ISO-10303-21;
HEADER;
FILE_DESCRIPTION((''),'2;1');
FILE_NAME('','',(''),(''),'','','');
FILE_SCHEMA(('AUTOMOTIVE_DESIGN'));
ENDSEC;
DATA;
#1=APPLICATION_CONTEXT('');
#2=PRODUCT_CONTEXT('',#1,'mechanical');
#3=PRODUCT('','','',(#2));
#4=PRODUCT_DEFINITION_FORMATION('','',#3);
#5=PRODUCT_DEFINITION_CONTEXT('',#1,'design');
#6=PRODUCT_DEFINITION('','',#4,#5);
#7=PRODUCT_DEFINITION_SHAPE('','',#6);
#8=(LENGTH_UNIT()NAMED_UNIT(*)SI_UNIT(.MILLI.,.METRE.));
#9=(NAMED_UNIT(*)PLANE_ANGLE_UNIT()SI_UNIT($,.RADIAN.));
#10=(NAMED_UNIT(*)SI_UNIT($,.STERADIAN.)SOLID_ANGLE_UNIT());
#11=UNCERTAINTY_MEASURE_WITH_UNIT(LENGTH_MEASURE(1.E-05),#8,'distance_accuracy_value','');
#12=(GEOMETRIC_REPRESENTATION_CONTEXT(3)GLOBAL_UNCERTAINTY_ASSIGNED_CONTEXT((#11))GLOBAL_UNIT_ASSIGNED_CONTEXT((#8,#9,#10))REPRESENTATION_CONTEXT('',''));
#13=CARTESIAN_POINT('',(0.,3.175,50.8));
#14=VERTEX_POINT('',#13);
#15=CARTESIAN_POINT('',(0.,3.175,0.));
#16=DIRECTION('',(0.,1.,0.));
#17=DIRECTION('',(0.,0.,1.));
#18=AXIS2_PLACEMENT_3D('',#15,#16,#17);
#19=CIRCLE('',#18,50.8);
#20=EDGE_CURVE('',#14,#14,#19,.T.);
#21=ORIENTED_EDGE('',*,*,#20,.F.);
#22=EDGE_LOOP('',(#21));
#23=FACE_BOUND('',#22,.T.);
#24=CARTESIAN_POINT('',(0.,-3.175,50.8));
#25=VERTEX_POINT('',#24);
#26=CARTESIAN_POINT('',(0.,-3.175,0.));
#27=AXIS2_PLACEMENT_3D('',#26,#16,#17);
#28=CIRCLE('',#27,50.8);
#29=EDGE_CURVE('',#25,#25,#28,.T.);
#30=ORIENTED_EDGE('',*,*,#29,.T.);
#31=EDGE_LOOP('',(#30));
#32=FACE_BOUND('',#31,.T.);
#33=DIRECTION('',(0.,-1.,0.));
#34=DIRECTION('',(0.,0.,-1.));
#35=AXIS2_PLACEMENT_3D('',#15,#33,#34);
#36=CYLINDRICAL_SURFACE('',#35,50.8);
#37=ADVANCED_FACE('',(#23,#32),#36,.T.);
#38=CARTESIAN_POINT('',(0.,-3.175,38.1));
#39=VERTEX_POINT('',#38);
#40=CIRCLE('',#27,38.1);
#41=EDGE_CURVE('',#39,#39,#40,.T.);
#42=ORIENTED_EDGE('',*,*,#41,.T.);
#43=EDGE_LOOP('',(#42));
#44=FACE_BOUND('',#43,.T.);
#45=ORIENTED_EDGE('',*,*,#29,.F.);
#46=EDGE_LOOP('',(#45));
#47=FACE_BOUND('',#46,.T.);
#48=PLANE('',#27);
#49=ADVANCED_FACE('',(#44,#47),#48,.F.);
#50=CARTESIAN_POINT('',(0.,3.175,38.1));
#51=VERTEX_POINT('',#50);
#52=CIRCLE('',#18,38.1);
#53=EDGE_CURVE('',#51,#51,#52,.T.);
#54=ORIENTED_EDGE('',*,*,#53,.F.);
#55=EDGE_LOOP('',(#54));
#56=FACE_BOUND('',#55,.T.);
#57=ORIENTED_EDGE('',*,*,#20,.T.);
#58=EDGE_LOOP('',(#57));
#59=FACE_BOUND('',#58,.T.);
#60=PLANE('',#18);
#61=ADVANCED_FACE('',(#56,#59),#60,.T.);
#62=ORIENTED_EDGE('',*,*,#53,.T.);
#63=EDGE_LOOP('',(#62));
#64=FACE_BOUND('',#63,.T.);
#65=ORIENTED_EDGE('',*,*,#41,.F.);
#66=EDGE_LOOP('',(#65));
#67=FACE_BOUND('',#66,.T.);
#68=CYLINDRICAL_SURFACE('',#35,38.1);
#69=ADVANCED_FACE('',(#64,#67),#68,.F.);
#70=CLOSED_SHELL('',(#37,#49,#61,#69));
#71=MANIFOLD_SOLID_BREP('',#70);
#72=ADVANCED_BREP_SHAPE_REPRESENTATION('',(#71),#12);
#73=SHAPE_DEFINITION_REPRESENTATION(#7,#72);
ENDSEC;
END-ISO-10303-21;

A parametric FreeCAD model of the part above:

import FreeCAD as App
import Part
import Sketcher
Q = App.Units.Quantity

doc = App.newDocument("Part")
body = doc.addObject("PartDesign::Body", "Body")

# Sketch on XZ plane
sketch1 = doc.addObject("Sketcher::SketchObject", "Sketch")
body.addObject(sketch1)
sketch1.AttachmentSupport = (doc.XZ_Plane, [""])
sketch1.MapMode = "FlatFace"
sketch1.addGeometry([
    Part.Circle(App.Vector(0, 0, 0), App.Vector(0, 0, 1), 51),
    Part.Circle(App.Vector(0, 0, 0), App.Vector(0, 0, 1), 38),
], False)
sketch1.addConstraint([
    Sketcher.Constraint("Coincident", 0, 3, -1, 1),
    Sketcher.Constraint("Coincident", 1, 3, -1, 1),
    Sketcher.Constraint("Diameter", 0, Q("4 in")),
    Sketcher.Constraint("Diameter", 1, Q("3 in")),
])
pad1 = doc.addObject("PartDesign::Pad", "Pad")
body.addObject(pad1)
pad1.Profile = sketch1
pad1.Length = Q("0.25 in")
pad1.Midplane = True

doc.recompute()
